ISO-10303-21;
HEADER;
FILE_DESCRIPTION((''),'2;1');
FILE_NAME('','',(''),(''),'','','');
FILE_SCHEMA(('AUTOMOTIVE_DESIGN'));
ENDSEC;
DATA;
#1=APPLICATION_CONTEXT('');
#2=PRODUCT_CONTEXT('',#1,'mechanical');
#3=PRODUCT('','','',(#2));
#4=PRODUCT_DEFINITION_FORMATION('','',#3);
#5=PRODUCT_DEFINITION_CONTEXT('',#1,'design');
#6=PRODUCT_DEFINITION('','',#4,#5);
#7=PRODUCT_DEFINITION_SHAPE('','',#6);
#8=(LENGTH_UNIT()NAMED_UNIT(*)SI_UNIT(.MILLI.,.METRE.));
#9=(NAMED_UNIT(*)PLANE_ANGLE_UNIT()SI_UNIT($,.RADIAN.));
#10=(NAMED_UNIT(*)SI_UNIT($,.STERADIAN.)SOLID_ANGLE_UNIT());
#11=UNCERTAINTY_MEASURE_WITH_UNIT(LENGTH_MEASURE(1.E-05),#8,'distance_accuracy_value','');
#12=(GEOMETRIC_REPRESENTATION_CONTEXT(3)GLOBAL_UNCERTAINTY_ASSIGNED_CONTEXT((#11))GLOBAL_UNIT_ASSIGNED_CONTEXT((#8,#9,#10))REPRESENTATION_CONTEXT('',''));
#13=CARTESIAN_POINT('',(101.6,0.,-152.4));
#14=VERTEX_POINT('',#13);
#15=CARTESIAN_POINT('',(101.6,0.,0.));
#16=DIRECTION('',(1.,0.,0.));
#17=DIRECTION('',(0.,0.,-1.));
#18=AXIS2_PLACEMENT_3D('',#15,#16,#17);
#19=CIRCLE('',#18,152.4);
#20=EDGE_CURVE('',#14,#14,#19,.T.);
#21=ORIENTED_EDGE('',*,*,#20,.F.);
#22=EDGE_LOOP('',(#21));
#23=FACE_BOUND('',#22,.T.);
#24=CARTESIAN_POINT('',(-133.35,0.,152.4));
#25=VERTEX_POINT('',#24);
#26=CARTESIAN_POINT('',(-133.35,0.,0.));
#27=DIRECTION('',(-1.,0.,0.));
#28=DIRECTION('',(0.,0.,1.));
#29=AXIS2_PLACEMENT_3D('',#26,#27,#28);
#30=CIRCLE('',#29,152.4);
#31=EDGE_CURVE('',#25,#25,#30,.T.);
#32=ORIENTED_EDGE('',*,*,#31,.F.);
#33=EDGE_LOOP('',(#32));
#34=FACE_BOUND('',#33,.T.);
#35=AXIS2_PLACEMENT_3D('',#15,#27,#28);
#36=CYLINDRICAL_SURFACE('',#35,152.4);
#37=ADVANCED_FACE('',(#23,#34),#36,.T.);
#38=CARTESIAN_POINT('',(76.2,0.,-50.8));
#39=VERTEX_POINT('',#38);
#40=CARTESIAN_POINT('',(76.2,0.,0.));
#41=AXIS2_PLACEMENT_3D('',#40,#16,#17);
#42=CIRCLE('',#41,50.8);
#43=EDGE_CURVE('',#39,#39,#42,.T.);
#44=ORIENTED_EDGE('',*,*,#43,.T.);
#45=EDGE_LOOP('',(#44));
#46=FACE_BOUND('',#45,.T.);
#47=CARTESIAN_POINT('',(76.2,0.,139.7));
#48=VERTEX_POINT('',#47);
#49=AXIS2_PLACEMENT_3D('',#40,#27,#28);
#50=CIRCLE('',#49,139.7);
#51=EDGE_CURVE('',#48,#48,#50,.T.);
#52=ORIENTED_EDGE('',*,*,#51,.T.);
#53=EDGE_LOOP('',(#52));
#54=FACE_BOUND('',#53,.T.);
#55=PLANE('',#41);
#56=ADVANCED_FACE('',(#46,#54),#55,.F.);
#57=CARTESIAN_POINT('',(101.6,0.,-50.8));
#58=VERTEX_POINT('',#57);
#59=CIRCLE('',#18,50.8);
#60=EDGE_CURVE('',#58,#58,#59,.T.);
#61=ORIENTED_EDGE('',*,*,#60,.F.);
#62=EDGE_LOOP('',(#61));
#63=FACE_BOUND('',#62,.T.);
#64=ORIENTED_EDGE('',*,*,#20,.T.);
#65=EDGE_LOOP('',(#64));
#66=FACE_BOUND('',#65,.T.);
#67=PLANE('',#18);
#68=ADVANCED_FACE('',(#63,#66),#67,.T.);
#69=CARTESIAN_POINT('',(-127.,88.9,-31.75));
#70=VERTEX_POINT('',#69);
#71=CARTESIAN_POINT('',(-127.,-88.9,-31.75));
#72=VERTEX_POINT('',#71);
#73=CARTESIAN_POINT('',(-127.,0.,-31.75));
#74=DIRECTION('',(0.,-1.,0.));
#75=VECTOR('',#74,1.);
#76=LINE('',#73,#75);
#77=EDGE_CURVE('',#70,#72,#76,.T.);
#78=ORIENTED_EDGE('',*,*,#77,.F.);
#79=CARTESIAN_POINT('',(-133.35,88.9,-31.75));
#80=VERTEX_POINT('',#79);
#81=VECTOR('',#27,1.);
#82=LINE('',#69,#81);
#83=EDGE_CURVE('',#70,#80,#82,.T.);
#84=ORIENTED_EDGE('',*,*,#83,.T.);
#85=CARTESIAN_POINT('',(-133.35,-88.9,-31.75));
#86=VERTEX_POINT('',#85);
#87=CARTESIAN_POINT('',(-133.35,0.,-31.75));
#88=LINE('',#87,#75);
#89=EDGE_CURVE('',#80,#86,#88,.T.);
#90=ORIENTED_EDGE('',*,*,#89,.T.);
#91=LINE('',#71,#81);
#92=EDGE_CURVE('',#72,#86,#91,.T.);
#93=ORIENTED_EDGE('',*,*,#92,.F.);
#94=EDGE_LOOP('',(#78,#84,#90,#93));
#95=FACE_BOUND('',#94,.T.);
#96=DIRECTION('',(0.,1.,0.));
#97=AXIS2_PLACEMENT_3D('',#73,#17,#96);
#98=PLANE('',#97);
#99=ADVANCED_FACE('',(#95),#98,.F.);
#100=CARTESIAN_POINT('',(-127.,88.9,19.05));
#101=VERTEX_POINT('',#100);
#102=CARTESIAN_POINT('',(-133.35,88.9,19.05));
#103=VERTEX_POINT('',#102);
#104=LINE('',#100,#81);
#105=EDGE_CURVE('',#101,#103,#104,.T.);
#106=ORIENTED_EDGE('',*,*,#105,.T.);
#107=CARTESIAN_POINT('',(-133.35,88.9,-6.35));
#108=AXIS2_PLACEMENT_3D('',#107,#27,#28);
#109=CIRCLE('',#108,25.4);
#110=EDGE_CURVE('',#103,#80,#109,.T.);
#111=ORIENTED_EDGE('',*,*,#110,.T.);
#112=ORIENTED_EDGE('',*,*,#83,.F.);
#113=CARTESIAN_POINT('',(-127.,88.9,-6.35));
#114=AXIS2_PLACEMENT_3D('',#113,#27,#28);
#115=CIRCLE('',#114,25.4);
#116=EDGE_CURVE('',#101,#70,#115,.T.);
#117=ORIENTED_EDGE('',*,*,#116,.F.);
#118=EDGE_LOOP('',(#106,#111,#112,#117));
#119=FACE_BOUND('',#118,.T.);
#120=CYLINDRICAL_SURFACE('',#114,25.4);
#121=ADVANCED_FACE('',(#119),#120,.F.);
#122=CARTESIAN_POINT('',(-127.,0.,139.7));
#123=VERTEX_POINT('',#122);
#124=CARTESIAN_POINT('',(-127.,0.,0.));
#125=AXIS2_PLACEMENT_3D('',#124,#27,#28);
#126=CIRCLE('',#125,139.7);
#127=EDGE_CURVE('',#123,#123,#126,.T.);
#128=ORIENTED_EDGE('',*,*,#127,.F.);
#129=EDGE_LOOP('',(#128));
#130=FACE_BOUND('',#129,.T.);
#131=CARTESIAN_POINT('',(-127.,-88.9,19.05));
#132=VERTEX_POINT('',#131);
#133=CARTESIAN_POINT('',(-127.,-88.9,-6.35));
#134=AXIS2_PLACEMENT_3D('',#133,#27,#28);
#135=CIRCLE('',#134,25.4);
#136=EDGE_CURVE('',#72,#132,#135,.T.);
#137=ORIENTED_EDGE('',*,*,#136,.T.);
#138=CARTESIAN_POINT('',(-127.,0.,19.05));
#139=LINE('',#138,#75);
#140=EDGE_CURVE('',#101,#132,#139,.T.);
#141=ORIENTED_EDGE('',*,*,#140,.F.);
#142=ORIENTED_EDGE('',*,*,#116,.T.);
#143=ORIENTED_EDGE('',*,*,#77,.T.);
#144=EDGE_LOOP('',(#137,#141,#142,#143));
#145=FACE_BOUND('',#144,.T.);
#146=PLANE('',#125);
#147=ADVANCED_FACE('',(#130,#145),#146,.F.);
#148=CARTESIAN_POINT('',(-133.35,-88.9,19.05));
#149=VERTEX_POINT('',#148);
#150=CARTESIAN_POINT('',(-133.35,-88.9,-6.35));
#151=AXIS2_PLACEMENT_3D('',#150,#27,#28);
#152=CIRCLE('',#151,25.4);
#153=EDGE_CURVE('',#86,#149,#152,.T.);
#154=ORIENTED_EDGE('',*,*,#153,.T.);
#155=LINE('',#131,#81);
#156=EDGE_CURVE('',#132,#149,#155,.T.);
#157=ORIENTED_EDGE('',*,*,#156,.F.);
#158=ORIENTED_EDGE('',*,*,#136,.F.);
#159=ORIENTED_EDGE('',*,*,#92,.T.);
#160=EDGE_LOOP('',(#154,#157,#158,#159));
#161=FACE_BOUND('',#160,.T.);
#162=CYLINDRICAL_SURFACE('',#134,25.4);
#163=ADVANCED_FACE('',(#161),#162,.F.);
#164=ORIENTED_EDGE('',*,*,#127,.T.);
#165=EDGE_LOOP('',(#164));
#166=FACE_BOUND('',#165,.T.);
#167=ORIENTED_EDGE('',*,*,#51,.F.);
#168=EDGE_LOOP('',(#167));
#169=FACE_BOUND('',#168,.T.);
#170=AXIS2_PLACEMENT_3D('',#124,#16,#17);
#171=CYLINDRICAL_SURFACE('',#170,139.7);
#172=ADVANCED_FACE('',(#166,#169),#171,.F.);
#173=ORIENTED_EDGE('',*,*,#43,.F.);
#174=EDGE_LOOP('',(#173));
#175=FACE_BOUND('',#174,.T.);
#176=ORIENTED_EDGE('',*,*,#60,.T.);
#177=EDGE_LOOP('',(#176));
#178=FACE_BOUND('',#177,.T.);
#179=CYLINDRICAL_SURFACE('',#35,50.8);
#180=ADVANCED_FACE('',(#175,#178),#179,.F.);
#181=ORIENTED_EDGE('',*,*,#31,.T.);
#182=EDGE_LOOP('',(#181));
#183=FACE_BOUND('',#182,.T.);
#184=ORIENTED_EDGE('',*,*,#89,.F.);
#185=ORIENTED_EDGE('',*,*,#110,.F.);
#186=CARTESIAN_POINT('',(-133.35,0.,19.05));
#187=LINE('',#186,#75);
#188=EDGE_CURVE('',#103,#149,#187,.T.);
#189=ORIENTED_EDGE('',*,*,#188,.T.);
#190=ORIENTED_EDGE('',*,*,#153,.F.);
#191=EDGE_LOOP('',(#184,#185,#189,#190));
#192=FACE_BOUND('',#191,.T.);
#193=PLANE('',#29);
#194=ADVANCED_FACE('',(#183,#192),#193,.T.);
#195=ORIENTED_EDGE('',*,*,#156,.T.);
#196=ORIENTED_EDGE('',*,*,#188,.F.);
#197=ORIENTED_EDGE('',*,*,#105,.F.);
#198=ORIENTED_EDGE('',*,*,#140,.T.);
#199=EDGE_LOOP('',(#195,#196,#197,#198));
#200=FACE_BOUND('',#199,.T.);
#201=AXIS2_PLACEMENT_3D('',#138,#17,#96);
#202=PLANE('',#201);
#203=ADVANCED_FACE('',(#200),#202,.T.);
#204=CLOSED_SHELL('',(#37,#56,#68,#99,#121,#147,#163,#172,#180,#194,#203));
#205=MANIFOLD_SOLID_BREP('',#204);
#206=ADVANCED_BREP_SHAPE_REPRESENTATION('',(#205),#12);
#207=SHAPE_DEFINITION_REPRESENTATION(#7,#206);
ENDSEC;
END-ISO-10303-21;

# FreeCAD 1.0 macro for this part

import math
import FreeCAD as App
import Part
import Sketcher
Q = App.Units.Quantity

doc = App.newDocument("Part")
body = doc.addObject("PartDesign::Body", "Body")

# Sketch on YZ plane
sketch1 = body.newObject("Sketcher::SketchObject", "Sketch")
sketch1.AttachmentSupport = (doc.getObject("YZ_Plane"), [""])
sketch1.MapMode = "FlatFace"
sketch1.AttachmentOffset = App.Placement(App.Vector(0, 0, 3 * 25.4), App.Rotation())
sketch1.addGeometry([
    Part.Circle(App.Vector(0, 0, 0), App.Vector(0, 0, 1), 152),
    Part.Circle(App.Vector(0, 0, 0), App.Vector(0, 0, 1), 51),
], False)
sketch1.addConstraint([
    Sketcher.Constraint("Coincident", 0, 3, -1, 1),
    Sketcher.Constraint("Coincident", 1, 3, -1, 1),
    Sketcher.Constraint("Diameter", 0, Q("12 in")),
    Sketcher.Constraint("Diameter", 1, Q("4 in")),
])
pad1 = body.newObject("PartDesign::Pad", "Pad")
pad1.Profile = sketch1
pad1.Length = Q("1 in")

# Sketch on YZ plane
sketch2 = body.newObject("Sketcher::SketchObject", "Sketch001")
sketch2.AttachmentSupport = (doc.getObject("YZ_Plane"), [""])
sketch2.MapMode = "FlatFace"
sketch2.AttachmentOffset = App.Placement(App.Vector(0, 0, -5 * 25.4), App.Rotation())
sketch2.addGeometry([
    Part.Circle(App.Vector(0, 0, 0), App.Vector(0, 0, 1), 152),
    Part.Circle(App.Vector(0, 0, 0), App.Vector(0, 0, 1), 140),
], False)
sketch2.addConstraint([
    Sketcher.Constraint("Coincident", 0, 3, -1, 1),
    Sketcher.Constraint("Coincident", 1, 3, -1, 1),
    Sketcher.Constraint("Diameter", 0, Q("12 in")),
    Sketcher.Constraint("Diameter", 1, Q("11 in")),
])
pad2 = body.newObject("PartDesign::Pad", "Pad001")
pad2.Profile = sketch2
pad2.Length = Q("8 in")

# Sketch on YZ plane
sketch3 = body.newObject("Sketcher::SketchObject", "Sketch002")
sketch3.AttachmentSupport = (doc.getObject("YZ_Plane"), [""])
sketch3.MapMode = "FlatFace"
sketch3.AttachmentOffset = App.Placement(App.Vector(0, 0, -5.25 * 25.4), App.Rotation())
sketch3.addGeometry(Part.Circle(App.Vector(0, 0, 0), App.Vector(0, 0, 1), 152), False)
sketch3.addConstraint([
    Sketcher.Constraint("Coincident", 0, 3, -1, 1),
    Sketcher.Constraint("Diameter", 0, Q("12 in")),
])
pad3 = body.newObject("PartDesign::Pad", "Pad002")
pad3.Profile = sketch3
pad3.Length = Q("0.25 in")

# Sketch on YZ plane
sketch4 = body.newObject("Sketcher::SketchObject", "Sketch003")
sketch4.AttachmentSupport = (doc.getObject("YZ_Plane"), [""])
sketch4.MapMode = "FlatFace"
sketch4.AttachmentOffset = App.Placement(App.Vector(0, 0, -5.25 * 25.4), App.Rotation())
sketch4.addGeometry([
    Part.LineSegment(App.Vector(-89, 19, 0), App.Vector(89, 19, 0)),
    Part.ArcOfCircle(Part.Circle(App.Vector(89, -6, 0), App.Vector(0, 0, 1), 25), math.radians(-90), math.radians(90)),
    Part.LineSegment(App.Vector(89, -32, 0), App.Vector(-89, -32, 0)),
    Part.ArcOfCircle(Part.Circle(App.Vector(-89, -6, 0), App.Vector(0, 0, 1), 25), math.radians(90), math.radians(270)),
], False)
sketch4.addConstraint([
    Sketcher.Constraint("Tangent", 0, 2, 1, 2),
    Sketcher.Constraint("Tangent", 1, 1, 2, 1),
    Sketcher.Constraint("Tangent", 2, 2, 3, 2),
    Sketcher.Constraint("Tangent", 3, 1, 0, 1),
    Sketcher.Constraint("Horizontal", 0),
    Sketcher.Constraint("Horizontal", 2),
    Sketcher.Constraint("Radius", 1, Q("1 in")),
    Sketcher.Constraint("DistanceX", 0, 1, 0, 2, Q("7 in")),
    Sketcher.Constraint("DistanceX", -1, 1, 1, 3, Q("3.5 in")),
    Sketcher.Constraint("DistanceY", 1, 3, -1, 1, Q("0.25 in")),
])
pocket1 = body.newObject("PartDesign::Pocket", "Pocket")
pocket1.Profile = sketch4
pocket1.Length = Q("0.25 in")
pocket1.Reversed = True

doc.recompute()
